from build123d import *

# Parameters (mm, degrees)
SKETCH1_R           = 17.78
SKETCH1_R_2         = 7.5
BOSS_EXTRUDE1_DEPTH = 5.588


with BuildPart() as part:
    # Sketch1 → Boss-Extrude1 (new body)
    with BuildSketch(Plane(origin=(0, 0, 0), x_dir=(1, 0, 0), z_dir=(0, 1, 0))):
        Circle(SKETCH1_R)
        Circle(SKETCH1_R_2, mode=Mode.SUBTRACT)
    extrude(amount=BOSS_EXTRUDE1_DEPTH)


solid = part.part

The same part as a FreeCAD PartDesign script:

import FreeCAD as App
import Part
import Sketcher

V = App.Vector
Q = App.Units.Quantity

doc = App.newDocument("Part")
body = doc.addObject("PartDesign::Body", "Body")

# Sketch on XZ plane
sketch1 = body.newObject("Sketcher::SketchObject", "Sketch")
sketch1.AttachmentSupport = (doc.getObject("XZ_Plane"), [""])
sketch1.MapMode = "FlatFace"
sketch1.addGeometry(Part.Circle(V(0, 0, 0), V(0, 0, 1), 18), False)
sketch1.addGeometry(Part.Circle(V(0, 0, 0), V(0, 0, 1), 8), False)
sketch1.addConstraint(Sketcher.Constraint("Coincident", 0, 3, -1, 1))
sketch1.addConstraint(Sketcher.Constraint("Coincident", 1, 3, -1, 1))
sketch1.addConstraint(Sketcher.Constraint("Diameter", 0, Q("1.4 in")))
sketch1.addConstraint(Sketcher.Constraint("Diameter", 1, 15.0))
pad1 = body.newObject("PartDesign::Pad", "Pad")
pad1.Profile = sketch1
pad1.Length = Q("0.22 in")
pad1.Reversed = True

doc.recompute()
